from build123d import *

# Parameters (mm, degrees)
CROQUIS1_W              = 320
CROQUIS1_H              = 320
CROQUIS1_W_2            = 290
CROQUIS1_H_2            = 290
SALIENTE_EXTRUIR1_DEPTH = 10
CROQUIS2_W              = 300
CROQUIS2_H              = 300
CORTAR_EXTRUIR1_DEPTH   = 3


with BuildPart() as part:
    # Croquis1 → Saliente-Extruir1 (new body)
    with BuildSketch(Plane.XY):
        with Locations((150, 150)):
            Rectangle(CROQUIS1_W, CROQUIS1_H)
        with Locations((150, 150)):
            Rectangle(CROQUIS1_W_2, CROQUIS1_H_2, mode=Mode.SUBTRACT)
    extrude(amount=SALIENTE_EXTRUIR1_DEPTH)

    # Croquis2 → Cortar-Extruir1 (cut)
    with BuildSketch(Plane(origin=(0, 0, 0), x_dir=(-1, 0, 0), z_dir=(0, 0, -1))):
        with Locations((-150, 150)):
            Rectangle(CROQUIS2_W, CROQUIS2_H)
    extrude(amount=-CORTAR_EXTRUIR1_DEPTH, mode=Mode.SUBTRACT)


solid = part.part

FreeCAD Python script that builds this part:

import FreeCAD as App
import Part
import Sketcher
from FreeCAD import Vector
Q = App.Units.Quantity

doc = App.newDocument("Part")
body = doc.addObject("PartDesign::Body", "Body")

sketch1 = doc.addObject("Sketcher::SketchObject", "Sketch")
body.addObject(sketch1)
sketch1.AttachmentSupport = (doc.XY_Plane, [""])
sketch1.MapMode = "FlatFace"
sketch1.addGeometry(Part.LineSegment(Vector(-10, 310, 0), Vector(-10, -10, 0)), False)
sketch1.addGeometry(Part.LineSegment(Vector(-10, -10, 0), Vector(310, -10, 0)), False)
sketch1.addGeometry(Part.LineSegment(Vector(310, -10, 0), Vector(310, 310, 0)), False)
sketch1.addGeometry(Part.LineSegment(Vector(310, 310, 0), Vector(-10, 310, 0)), False)
sketch1.addGeometry(Part.LineSegment(Vector(295, 5, 0), Vector(5, 5, 0)), False)
sketch1.addGeometry(Part.LineSegment(Vector(5, 5, 0), Vector(5, 295, 0)), False)
sketch1.addGeometry(Part.LineSegment(Vector(5, 295, 0), Vector(295, 295, 0)), False)
sketch1.addGeometry(Part.LineSegment(Vector(295, 295, 0), Vector(295, 5, 0)), False)
sketch1.addConstraint(Sketcher.Constraint("Coincident", 0, 2, 1, 1))
sketch1.addConstraint(Sketcher.Constraint("Coincident", 1, 2, 2, 1))
sketch1.addConstraint(Sketcher.Constraint("Coincident", 2, 2, 3, 1))
sketch1.addConstraint(Sketcher.Constraint("Coincident", 3, 2, 0, 1))
sketch1.addConstraint(Sketcher.Constraint("Coincident", 4, 2, 5, 1))
sketch1.addConstraint(Sketcher.Constraint("Coincident", 5, 2, 6, 1))
sketch1.addConstraint(Sketcher.Constraint("Coincident", 6, 2, 7, 1))
sketch1.addConstraint(Sketcher.Constraint("Coincident", 7, 2, 4, 1))
sketch1.addConstraint(Sketcher.Constraint("Vertical", 0))
sketch1.addConstraint(Sketcher.Constraint("Horizontal", 1))
sketch1.addConstraint(Sketcher.Constraint("Vertical", 2))
sketch1.addConstraint(Sketcher.Constraint("Horizontal", 3))
sketch1.addConstraint(Sketcher.Constraint("Horizontal", 4))
sketch1.addConstraint(Sketcher.Constraint("Vertical", 5))
sketch1.addConstraint(Sketcher.Constraint("Horizontal", 6))
sketch1.addConstraint(Sketcher.Constraint("Vertical", 7))
sketch1.addConstraint(Sketcher.Constraint("Equal", 3, 0))
sketch1.addConstraint(Sketcher.Constraint("Equal", 6, 5))
sketch1.addConstraint(Sketcher.Constraint("DistanceX", 1, 1, 1, 2, Q("320 mm")))
sketch1.addConstraint(Sketcher.Constraint("DistanceX", 4, 2, 4, 1, Q("290 mm")))
sketch1.addConstraint(Sketcher.Constraint("DistanceX", 0, 2, -1, 1, Q("10 mm")))
sketch1.addConstraint(Sketcher.Constraint("DistanceY", 0, 2, -1, 1, Q("10 mm")))
sketch1.addConstraint(Sketcher.Constraint("DistanceX", -1, 1, 4, 2, Q("5 mm")))
sketch1.addConstraint(Sketcher.Constraint("DistanceY", -1, 1, 4, 2, Q("5 mm")))
pad1 = doc.addObject("PartDesign::Pad", "Pad")
body.addObject(pad1)
pad1.Profile = sketch1
pad1.Length = 10

sketch2 = doc.addObject("Sketcher::SketchObject", "Sketch001")
body.addObject(sketch2)
sketch2.AttachmentSupport = (doc.XY_Plane, [""])
sketch2.MapMode = "FlatFace"
sketch2.addGeometry(Part.LineSegment(Vector(300, 300, 0), Vector(300, 0, 0)), False)
sketch2.addGeometry(Part.LineSegment(Vector(300, 0, 0), Vector(0, 0, 0)), False)
sketch2.addGeometry(Part.LineSegment(Vector(0, 0, 0), Vector(0, 300, 0)), False)
sketch2.addGeometry(Part.LineSegment(Vector(0, 300, 0), Vector(300, 300, 0)), False)
sketch2.addConstraint(Sketcher.Constraint("Coincident", 0, 2, 1, 1))
sketch2.addConstraint(Sketcher.Constraint("Coincident", 1, 2, 2, 1))
sketch2.addConstraint(Sketcher.Constraint("Coincident", 2, 2, 3, 1))
sketch2.addConstraint(Sketcher.Constraint("Coincident", 3, 2, 0, 1))
sketch2.addConstraint(Sketcher.Constraint("Vertical", 0))
sketch2.addConstraint(Sketcher.Constraint("Horizontal", 1))
sketch2.addConstraint(Sketcher.Constraint("Vertical", 2))
sketch2.addConstraint(Sketcher.Constraint("Horizontal", 3))
sketch2.addConstraint(Sketcher.Constraint("Coincident", 1, 2, -1, 1))
sketch2.addConstraint(Sketcher.Constraint("Equal", 3, 0))
sketch2.addConstraint(Sketcher.Constraint("DistanceX", 1, 2, 1, 1, Q("300 mm")))
pocket1 = doc.addObject("PartDesign::Pocket", "Pocket")
body.addObject(pocket1)
pocket1.Profile = sketch2
pocket1.Length = 3
pocket1.Reversed = True

doc.recompute()
